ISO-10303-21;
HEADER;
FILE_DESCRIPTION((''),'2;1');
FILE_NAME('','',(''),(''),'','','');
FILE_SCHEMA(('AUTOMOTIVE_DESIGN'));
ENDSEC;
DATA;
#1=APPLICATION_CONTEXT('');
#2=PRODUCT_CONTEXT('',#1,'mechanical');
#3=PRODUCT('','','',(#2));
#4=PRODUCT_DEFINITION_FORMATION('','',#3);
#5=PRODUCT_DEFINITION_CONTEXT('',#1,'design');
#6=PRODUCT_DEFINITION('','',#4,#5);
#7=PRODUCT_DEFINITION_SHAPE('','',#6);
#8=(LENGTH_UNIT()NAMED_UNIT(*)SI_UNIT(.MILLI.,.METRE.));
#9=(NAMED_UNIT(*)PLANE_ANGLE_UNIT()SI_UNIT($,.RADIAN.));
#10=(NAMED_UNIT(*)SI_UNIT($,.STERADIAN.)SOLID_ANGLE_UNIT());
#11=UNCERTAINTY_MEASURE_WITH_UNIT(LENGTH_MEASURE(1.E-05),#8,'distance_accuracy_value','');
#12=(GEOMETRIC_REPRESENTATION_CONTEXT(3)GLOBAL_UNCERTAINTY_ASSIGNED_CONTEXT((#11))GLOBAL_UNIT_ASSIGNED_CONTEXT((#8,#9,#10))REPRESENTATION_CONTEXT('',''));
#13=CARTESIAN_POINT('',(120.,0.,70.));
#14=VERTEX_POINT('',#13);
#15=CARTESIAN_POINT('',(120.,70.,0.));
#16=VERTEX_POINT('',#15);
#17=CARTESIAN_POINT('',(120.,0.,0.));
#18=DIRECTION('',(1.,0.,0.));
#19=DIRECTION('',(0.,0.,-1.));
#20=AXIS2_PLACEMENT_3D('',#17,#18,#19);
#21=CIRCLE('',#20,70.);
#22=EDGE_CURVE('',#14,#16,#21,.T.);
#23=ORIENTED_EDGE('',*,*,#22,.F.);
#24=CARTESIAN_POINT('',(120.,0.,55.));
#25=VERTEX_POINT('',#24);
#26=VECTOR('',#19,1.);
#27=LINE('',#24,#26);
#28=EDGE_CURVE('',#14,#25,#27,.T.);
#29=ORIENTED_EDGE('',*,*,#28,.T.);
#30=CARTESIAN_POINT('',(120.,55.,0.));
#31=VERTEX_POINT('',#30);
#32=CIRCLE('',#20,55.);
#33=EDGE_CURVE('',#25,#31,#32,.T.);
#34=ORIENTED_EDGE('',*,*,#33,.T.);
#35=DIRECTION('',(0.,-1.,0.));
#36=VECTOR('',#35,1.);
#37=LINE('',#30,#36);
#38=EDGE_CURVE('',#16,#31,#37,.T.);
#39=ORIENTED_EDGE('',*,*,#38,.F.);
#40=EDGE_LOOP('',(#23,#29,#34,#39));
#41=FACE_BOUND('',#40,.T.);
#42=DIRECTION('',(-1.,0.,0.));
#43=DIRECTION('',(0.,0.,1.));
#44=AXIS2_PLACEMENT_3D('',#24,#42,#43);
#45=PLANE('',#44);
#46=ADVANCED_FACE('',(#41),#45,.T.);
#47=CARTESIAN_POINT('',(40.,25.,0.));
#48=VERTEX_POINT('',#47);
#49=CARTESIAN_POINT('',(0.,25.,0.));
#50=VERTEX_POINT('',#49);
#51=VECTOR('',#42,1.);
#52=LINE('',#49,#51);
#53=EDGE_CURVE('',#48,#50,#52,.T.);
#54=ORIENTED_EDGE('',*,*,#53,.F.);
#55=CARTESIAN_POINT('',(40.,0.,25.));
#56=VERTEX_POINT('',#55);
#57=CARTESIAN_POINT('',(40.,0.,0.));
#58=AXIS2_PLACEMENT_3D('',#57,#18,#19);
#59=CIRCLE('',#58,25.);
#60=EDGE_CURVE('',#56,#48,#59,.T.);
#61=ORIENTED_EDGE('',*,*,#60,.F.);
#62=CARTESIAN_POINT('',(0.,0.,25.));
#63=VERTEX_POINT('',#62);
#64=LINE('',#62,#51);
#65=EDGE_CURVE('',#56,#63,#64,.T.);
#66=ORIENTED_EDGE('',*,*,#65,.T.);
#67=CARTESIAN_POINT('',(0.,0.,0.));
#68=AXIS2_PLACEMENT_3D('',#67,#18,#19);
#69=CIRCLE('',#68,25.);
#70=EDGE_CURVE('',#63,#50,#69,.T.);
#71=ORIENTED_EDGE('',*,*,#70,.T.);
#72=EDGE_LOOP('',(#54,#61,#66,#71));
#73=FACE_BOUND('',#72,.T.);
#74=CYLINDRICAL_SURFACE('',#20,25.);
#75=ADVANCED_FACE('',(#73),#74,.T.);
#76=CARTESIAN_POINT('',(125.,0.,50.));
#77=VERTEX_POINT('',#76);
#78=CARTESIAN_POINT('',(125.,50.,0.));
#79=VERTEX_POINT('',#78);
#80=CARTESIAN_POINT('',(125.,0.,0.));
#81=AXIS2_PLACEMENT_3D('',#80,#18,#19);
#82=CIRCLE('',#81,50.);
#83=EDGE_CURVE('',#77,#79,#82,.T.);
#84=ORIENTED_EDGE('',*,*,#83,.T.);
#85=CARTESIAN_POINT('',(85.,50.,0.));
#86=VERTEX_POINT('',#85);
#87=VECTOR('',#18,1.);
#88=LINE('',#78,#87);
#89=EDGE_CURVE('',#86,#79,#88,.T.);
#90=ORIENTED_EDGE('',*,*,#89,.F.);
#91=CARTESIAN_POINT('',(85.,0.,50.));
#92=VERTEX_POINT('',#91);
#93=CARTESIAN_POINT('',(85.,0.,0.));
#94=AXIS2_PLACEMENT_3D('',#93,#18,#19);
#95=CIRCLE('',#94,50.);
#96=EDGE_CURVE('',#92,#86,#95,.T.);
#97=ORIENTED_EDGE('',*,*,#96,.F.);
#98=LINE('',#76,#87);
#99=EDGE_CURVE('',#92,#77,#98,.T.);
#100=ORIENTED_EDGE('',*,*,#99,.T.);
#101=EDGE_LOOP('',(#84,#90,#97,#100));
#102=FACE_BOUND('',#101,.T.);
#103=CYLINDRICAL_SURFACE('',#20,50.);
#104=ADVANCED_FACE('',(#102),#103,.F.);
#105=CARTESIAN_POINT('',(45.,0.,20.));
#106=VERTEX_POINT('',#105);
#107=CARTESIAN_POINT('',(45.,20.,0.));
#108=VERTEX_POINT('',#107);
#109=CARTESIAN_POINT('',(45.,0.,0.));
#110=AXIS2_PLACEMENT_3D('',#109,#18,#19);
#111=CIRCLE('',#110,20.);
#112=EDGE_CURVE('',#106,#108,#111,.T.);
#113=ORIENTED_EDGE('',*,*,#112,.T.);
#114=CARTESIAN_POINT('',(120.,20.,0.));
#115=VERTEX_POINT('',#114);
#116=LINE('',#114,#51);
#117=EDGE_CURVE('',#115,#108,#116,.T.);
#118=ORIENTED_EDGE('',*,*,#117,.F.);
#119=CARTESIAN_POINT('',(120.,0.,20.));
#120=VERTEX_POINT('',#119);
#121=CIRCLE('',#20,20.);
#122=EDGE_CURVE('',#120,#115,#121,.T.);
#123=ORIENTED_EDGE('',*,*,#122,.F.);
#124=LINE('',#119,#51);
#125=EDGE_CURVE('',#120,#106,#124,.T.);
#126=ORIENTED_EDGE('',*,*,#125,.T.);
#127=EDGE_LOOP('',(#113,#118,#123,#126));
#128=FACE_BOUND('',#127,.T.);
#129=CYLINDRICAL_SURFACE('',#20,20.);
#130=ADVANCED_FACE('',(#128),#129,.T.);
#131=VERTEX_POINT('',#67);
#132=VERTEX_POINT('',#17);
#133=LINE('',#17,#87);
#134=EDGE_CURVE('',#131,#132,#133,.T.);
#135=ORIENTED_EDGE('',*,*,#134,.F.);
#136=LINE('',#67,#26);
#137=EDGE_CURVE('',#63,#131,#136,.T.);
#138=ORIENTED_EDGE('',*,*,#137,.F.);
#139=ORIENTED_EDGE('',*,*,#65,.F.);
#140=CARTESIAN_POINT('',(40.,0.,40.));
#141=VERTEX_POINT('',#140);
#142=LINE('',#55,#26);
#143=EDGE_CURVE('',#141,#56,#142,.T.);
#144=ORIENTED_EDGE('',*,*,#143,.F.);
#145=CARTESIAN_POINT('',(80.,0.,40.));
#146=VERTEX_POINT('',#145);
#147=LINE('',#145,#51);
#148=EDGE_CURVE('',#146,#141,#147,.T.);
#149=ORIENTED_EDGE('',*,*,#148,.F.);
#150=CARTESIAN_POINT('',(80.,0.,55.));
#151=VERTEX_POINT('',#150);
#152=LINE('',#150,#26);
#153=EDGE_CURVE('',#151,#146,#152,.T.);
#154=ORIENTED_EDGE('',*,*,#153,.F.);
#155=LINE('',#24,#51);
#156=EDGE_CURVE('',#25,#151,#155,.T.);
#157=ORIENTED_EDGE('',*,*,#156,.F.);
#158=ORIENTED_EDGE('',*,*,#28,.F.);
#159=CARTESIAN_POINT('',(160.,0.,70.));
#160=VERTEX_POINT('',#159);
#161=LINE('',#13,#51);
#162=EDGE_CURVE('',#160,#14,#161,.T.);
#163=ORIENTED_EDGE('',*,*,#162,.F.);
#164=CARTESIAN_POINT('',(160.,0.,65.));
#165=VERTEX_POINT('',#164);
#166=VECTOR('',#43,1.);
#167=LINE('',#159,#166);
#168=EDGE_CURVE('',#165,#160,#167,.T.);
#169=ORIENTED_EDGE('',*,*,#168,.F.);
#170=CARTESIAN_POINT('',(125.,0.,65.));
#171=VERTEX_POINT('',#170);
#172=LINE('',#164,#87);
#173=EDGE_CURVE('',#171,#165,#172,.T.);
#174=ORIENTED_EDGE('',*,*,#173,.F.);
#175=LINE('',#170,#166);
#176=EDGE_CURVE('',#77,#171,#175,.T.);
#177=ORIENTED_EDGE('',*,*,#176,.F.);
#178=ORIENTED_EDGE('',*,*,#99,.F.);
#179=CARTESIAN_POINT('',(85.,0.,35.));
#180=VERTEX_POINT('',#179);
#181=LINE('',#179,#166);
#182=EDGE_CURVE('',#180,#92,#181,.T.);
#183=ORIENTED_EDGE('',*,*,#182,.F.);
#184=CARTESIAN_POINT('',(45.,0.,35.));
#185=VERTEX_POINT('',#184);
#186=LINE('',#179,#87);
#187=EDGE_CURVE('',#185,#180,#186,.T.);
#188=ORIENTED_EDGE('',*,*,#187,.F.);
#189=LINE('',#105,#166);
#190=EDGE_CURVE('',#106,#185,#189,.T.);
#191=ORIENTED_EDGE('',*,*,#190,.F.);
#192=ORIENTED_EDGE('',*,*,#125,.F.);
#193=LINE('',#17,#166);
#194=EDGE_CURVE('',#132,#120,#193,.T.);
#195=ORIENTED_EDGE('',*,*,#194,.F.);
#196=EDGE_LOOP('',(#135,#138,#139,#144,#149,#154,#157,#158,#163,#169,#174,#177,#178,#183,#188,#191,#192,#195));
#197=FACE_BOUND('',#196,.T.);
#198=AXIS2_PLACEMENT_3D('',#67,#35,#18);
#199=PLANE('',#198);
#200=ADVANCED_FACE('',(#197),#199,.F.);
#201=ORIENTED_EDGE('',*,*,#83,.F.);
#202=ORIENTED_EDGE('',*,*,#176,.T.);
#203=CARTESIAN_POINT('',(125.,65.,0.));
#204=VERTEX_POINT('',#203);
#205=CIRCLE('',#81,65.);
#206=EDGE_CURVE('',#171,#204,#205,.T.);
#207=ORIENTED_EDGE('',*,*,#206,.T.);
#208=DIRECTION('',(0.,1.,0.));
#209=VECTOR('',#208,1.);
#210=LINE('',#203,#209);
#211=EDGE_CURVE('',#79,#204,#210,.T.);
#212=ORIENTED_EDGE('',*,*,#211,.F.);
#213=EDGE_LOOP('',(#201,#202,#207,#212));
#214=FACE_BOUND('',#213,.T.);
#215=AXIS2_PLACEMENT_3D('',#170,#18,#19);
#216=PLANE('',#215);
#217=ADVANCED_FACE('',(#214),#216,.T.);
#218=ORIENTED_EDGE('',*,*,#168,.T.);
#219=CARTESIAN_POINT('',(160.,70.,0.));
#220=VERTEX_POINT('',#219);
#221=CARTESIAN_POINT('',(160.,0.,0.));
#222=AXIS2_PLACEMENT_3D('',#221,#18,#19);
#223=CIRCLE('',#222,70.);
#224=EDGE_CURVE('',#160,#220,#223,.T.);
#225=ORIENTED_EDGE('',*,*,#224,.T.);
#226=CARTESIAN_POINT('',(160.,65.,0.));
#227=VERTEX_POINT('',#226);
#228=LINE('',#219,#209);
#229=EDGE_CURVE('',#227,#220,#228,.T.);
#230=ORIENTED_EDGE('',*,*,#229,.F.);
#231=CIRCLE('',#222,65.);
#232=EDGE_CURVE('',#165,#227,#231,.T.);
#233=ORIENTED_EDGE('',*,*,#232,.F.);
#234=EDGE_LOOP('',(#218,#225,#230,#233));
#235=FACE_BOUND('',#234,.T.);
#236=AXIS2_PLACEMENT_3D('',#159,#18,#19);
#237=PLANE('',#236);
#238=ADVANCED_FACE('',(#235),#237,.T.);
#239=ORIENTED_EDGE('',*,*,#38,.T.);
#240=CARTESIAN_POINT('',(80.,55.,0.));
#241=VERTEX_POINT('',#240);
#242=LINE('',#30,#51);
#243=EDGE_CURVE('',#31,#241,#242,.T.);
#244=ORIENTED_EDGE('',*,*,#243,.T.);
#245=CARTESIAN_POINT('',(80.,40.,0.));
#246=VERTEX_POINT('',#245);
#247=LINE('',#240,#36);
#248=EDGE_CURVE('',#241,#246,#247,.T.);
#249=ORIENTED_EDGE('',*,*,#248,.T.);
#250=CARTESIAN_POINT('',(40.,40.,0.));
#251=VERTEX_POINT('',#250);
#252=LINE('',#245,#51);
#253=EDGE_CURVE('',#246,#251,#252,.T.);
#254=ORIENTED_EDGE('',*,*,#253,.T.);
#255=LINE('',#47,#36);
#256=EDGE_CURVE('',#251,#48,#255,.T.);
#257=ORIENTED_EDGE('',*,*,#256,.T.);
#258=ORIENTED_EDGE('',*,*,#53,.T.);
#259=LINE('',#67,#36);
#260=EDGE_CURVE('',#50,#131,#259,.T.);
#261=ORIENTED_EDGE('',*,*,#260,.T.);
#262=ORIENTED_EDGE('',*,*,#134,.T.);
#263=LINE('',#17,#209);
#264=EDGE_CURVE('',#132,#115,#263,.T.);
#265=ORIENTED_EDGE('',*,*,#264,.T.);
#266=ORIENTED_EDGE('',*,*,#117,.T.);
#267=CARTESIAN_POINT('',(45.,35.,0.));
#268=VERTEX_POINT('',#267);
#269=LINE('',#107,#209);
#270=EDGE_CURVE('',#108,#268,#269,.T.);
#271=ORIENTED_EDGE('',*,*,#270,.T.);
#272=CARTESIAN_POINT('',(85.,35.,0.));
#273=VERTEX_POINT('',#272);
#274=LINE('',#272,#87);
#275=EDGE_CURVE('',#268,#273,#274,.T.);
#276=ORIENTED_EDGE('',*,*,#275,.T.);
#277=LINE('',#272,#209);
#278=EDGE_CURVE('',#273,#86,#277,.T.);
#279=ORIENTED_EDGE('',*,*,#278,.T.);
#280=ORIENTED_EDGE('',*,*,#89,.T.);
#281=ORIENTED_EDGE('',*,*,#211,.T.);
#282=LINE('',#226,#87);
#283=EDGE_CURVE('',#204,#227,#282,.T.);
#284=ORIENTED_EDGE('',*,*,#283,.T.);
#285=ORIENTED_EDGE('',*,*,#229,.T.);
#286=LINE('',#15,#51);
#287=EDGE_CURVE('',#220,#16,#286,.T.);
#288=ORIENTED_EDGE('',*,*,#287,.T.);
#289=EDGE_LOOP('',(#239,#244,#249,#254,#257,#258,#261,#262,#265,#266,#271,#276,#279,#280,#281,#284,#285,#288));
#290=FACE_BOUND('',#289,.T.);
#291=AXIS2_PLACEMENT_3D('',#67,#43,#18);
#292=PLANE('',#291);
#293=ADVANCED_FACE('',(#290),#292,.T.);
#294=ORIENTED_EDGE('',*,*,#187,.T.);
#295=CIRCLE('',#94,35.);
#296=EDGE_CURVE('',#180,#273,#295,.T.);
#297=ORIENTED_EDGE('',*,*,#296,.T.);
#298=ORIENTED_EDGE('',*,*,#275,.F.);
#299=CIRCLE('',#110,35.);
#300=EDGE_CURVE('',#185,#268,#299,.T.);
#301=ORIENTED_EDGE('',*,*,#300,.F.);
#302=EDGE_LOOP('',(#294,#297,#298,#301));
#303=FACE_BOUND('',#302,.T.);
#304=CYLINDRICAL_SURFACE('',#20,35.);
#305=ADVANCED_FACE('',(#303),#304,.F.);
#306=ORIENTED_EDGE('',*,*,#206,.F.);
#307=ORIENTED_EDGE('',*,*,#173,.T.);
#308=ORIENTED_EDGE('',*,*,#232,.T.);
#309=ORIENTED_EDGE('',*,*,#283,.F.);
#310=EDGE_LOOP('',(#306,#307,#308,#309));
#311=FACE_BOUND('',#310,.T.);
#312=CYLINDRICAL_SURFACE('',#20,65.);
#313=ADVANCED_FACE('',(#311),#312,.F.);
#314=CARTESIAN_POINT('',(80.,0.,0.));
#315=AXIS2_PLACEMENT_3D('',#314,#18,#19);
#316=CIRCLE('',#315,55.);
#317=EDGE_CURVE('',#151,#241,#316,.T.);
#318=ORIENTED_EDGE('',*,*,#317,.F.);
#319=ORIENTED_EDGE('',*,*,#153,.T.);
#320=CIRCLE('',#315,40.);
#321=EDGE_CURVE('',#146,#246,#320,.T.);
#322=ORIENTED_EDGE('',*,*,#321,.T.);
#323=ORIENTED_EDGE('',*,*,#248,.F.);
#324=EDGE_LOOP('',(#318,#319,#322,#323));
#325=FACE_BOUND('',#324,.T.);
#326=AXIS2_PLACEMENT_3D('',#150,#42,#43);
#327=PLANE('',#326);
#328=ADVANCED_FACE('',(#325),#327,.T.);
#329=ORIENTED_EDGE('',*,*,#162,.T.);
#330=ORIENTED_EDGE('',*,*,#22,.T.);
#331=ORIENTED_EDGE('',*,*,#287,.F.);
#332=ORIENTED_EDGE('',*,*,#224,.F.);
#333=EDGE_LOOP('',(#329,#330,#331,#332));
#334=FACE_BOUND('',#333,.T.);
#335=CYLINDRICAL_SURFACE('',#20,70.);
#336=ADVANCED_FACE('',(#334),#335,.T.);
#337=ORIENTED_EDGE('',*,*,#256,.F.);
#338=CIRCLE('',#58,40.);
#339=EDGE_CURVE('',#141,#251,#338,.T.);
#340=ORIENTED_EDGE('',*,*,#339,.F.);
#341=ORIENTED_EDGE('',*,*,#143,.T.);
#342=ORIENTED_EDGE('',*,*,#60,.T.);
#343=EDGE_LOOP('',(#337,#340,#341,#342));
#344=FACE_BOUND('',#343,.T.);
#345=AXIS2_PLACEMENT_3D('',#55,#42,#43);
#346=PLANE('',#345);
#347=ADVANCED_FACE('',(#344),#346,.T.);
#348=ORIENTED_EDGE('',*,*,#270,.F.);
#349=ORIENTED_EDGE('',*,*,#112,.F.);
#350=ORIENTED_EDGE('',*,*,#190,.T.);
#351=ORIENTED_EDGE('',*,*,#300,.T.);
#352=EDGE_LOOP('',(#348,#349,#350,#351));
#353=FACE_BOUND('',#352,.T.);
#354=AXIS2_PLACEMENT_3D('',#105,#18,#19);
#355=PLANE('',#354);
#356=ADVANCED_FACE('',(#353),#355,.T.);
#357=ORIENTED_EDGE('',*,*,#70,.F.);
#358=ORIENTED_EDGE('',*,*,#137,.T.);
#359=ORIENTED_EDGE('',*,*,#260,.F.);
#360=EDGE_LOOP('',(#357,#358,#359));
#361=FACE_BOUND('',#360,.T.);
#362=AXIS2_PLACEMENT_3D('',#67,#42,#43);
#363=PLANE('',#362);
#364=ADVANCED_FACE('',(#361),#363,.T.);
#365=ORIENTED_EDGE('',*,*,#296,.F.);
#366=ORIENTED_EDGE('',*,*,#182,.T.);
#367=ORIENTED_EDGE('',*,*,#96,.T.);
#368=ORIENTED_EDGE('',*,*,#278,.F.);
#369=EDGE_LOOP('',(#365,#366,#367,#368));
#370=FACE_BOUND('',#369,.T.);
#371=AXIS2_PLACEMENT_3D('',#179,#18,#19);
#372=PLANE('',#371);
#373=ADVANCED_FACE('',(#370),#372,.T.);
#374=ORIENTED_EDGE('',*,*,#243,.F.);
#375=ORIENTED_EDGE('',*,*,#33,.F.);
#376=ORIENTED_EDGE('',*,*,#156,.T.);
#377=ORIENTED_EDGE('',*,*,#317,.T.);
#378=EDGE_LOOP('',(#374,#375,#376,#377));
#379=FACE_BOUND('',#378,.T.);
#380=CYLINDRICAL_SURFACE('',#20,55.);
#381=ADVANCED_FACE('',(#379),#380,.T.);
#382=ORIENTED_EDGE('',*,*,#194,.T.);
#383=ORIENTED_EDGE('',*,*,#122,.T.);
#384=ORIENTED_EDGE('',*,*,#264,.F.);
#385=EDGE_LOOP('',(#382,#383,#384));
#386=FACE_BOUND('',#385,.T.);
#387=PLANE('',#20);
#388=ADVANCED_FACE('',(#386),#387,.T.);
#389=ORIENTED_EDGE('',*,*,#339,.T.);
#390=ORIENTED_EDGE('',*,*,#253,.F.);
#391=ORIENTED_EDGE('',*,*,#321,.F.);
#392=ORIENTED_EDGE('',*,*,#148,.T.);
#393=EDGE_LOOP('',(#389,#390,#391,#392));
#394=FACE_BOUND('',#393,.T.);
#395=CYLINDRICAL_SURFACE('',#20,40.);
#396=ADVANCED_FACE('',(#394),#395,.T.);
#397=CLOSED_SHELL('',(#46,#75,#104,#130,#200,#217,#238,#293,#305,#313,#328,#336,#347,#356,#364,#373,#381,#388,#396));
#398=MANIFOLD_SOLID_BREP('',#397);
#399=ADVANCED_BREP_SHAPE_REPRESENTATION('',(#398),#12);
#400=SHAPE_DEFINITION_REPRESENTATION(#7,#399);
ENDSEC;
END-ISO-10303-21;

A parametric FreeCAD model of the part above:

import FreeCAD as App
import Part
import Sketcher
from FreeCAD import Vector
Q = App.Units.Quantity

doc = App.newDocument("Part")
params = doc.addObject("Spreadsheet::Sheet", "Params")
for row, (alias, value) in enumerate([
    ("sketch1_width", "120 mm"),
    ("sketch1_width2", "75 mm"),
    ("sketch1_height", "20 mm"),
    ("sketch1_height2", "15 mm"),
    ("sketch1_height3", "5 mm"),
    ("revolution_angle", "270 deg"),
], start=1):
    params.set(f"A{row}", alias)
    params.set(f"B{row}", "=" + value)
    params.setAlias(f"B{row}", alias)

body = doc.addObject("PartDesign::Body", "Body")

# Sketch on XY plane
sketch1 = body.newObject("Sketcher::SketchObject", "Sketch")
sketch1.AttachmentSupport = (doc.getObject("XY_Plane"), [""])
sketch1.MapMode = "FlatFace"
sketch1.addGeometry([
    Part.LineSegment(Vector(0, 0, 0), Vector(120, 0, 0)),  # 0
    Part.LineSegment(Vector(120, 0, 0), Vector(120, 20, 0)),  # 1
    Part.LineSegment(Vector(120, 20, 0), Vector(45, 20, 0)),  # 2
    Part.LineSegment(Vector(45, 20, 0), Vector(45, 35, 0)),  # 3
    Part.LineSegment(Vector(45, 35, 0), Vector(85, 35, 0)),  # 4
    Part.LineSegment(Vector(85, 35, 0), Vector(85, 50, 0)),  # 5
    Part.LineSegment(Vector(85, 50, 0), Vector(125, 50, 0)),  # 6
    Part.LineSegment(Vector(125, 50, 0), Vector(125, 65, 0)),  # 7
    Part.LineSegment(Vector(125, 65, 0), Vector(160, 65, 0)),  # 8
    Part.LineSegment(Vector(160, 65, 0), Vector(160, 70, 0)),  # 9
    Part.LineSegment(Vector(160, 70, 0), Vector(120, 70, 0)),  # 10
    Part.LineSegment(Vector(120, 70, 0), Vector(120, 55, 0)),  # 11
    Part.LineSegment(Vector(120, 55, 0), Vector(80, 55, 0)),  # 12
    Part.LineSegment(Vector(80, 55, 0), Vector(80, 40, 0)),  # 13
    Part.LineSegment(Vector(80, 40, 0), Vector(40, 40, 0)),  # 14
    Part.LineSegment(Vector(40, 40, 0), Vector(40, 25, 0)),  # 15
    Part.LineSegment(Vector(40, 25, 0), Vector(0, 25, 0)),  # 16
    Part.LineSegment(Vector(0, 25, 0), Vector(0, 0, 0)),  # 17
], False)
sketch1.addConstraint([
    Sketcher.Constraint("Coincident", 0, 2, 1, 1),
    Sketcher.Constraint("Coincident", 1, 2, 2, 1),
    Sketcher.Constraint("Coincident", 2, 2, 3, 1),
    Sketcher.Constraint("Coincident", 3, 2, 4, 1),
    Sketcher.Constraint("Coincident", 4, 2, 5, 1),
    Sketcher.Constraint("Coincident", 5, 2, 6, 1),
    Sketcher.Constraint("Coincident", 6, 2, 7, 1),
    Sketcher.Constraint("Coincident", 7, 2, 8, 1),
    Sketcher.Constraint("Coincident", 8, 2, 9, 1),
    Sketcher.Constraint("Coincident", 9, 2, 10, 1),
    Sketcher.Constraint("Coincident", 10, 2, 11, 1),
    Sketcher.Constraint("Coincident", 11, 2, 12, 1),
    Sketcher.Constraint("Coincident", 12, 2, 13, 1),
    Sketcher.Constraint("Coincident", 13, 2, 14, 1),
    Sketcher.Constraint("Coincident", 14, 2, 15, 1),
    Sketcher.Constraint("Coincident", 15, 2, 16, 1),
    Sketcher.Constraint("Coincident", 16, 2, 17, 1),
    Sketcher.Constraint("Coincident", 17, 2, 0, 1),
    Sketcher.Constraint("Horizontal", 0),
    Sketcher.Constraint("Vertical", 1),
    Sketcher.Constraint("Horizontal", 2),
    Sketcher.Constraint("Vertical", 3),
    Sketcher.Constraint("Horizontal", 4),
    Sketcher.Constraint("Vertical", 5),
    Sketcher.Constraint("Horizontal", 6),
    Sketcher.Constraint("Vertical", 7),
    Sketcher.Constraint("Horizontal", 8),
    Sketcher.Constraint("Vertical", 9),
    Sketcher.Constraint("Horizontal", 10),
    Sketcher.Constraint("Vertical", 11),
    Sketcher.Constraint("Horizontal", 12),
    Sketcher.Constraint("Vertical", 13),
    Sketcher.Constraint("Horizontal", 14),
    Sketcher.Constraint("Vertical", 15),
    Sketcher.Constraint("Horizontal", 16),
    Sketcher.Constraint("Vertical", 17),
    Sketcher.Constraint("Coincident", 17, 2, -1, 1),
    Sketcher.Constraint("Vertical", 1, 2, 10, 2),
    Sketcher.Constraint("Equal", 4, 6),
    Sketcher.Constraint("Equal", 6, 10),
    Sketcher.Constraint("Equal", 10, 12),
    Sketcher.Constraint("Equal", 12, 14),
    Sketcher.Constraint("Equal", 14, 16),
    Sketcher.Constraint("Equal", 3, 5),
    Sketcher.Constraint("Equal", 5, 7),
    Sketcher.Constraint("Equal", 7, 11),
    Sketcher.Constraint("Equal", 11, 13),
    Sketcher.Constraint("Equal", 13, 15),
    Sketcher.Constraint("DistanceX", 0, 1, 0, 2, Q("120 mm")),
    Sketcher.Constraint("DistanceX", 2, 2, 2, 1, Q("75 mm")),
    Sketcher.Constraint("DistanceY", 1, 1, 1, 2, Q("20 mm")),
    Sketcher.Constraint("DistanceY", 3, 1, 3, 2, Q("15 mm")),
    Sketcher.Constraint("DistanceY", 9, 1, 9, 2, Q("5 mm")),
])
sketch1.setExpression("Constraints[48]", "Params.sketch1_width")
sketch1.setExpression("Constraints[49]", "Params.sketch1_width2")
sketch1.setExpression("Constraints[50]", "Params.sketch1_height")
sketch1.setExpression("Constraints[51]", "Params.sketch1_height2")
sketch1.setExpression("Constraints[52]", "Params.sketch1_height3")
revolution = body.newObject("PartDesign::Revolution", "Revolution")
revolution.Profile = sketch1
revolution.ReferenceAxis = (sketch1, ["H_Axis"])
revolution.setExpression("Angle", "Params.revolution_angle")
revolution.Reversed = True

doc.recompute()
